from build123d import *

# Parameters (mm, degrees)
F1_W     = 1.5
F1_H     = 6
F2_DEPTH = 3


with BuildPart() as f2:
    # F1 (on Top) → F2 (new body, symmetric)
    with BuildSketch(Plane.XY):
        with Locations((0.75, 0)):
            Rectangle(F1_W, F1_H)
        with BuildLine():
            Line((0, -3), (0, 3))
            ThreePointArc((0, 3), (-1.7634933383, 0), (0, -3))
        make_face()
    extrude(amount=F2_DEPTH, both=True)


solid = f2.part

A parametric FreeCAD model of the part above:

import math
import FreeCAD as App
import Part
import Sketcher

doc = App.newDocument("Part")
body = doc.addObject("PartDesign::Body", "Body")

sketch1 = doc.addObject("Sketcher::SketchObject", "Sketch")
body.addObject(sketch1)
sketch1.AttachmentSupport = (doc.XY_Plane, [""])
sketch1.MapMode = "FlatFace"
sketch1.addGeometry(Part.LineSegment(App.Vector(0, -3, 0), App.Vector(1.5, -3, 0)), False)
sketch1.addGeometry(Part.LineSegment(App.Vector(1.5, -3, 0), App.Vector(1.5, 3, 0)), False)
sketch1.addGeometry(Part.LineSegment(App.Vector(1.5, 3, 0), App.Vector(0, 3, 0)), False)
sketch1.addGeometry(Part.ArcOfCircle(Part.Circle(App.Vector(1.7, 0, 0), App.Vector(0, 0, 1), 3.4), math.radians(119), math.radians(241)), False)
sketch1.addConstraint(Sketcher.Constraint("Coincident", 0, 2, 1, 1))
sketch1.addConstraint(Sketcher.Constraint("Coincident", 1, 2, 2, 1))
sketch1.addConstraint(Sketcher.Constraint("Coincident", 2, 2, 3, 1))
sketch1.addConstraint(Sketcher.Constraint("Coincident", 3, 2, 0, 1))
sketch1.addConstraint(Sketcher.Constraint("Horizontal", 0))
sketch1.addConstraint(Sketcher.Constraint("Vertical", 1))
sketch1.addConstraint(Sketcher.Constraint("Horizontal", 2))
sketch1.addConstraint(Sketcher.Constraint("Symmetric", 2, 2, 3, 2, -1, 1))
sketch1.addConstraint(Sketcher.Constraint("PointOnObject", 3, 3, -1))
sketch1.addConstraint(Sketcher.Constraint("DistanceY", 1, 1, 1, 2, 6.0))
sketch1.addConstraint(Sketcher.Constraint("DistanceX", 0, 1, 0, 2, 1.5))
sketch1.addConstraint(Sketcher.Constraint("Radius", 3, 3.4335))
pad1 = doc.addObject("PartDesign::Pad", "Pad")
body.addObject(pad1)
pad1.Profile = sketch1
pad1.Length = 6
pad1.Midplane = True

doc.recompute()
